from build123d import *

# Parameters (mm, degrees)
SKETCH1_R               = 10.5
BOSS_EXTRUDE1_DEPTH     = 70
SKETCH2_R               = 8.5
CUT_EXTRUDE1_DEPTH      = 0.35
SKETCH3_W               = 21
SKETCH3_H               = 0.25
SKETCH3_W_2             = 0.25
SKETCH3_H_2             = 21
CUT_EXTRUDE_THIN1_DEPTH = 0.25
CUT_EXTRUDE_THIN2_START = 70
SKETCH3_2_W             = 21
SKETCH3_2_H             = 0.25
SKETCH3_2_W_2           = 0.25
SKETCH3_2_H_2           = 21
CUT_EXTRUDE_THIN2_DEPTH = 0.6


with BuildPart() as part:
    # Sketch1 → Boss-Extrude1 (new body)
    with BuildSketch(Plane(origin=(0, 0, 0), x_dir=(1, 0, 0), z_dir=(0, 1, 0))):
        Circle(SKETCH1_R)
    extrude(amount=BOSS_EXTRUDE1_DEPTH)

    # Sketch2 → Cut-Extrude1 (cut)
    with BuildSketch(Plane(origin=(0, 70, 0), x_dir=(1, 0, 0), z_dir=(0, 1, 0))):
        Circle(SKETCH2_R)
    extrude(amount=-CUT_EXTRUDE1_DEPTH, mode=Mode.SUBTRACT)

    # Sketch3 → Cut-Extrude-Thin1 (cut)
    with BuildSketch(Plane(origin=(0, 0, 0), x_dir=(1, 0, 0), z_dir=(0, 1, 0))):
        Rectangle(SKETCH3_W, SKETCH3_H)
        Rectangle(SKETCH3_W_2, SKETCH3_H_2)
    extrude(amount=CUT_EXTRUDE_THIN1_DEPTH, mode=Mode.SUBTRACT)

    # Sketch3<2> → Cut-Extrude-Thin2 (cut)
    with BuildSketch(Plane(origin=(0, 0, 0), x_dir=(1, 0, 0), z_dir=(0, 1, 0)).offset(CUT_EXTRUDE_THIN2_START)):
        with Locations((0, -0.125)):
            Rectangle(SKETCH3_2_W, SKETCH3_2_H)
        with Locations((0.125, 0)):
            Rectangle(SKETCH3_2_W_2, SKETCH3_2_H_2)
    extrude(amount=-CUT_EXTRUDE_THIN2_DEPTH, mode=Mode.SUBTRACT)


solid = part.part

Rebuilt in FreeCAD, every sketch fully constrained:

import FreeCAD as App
import Part
import Sketcher

V = App.Vector

doc = App.newDocument("Part")
body = doc.addObject("PartDesign::Body", "Body")

sketch1 = body.newObject("Sketcher::SketchObject", "Sketch")
sketch1.AttachmentSupport = (doc.getObject("XZ_Plane"), [""])
sketch1.MapMode = "FlatFace"
sketch1.addGeometry(Part.Circle(V(0, 0, 0), V(0, 0, 1), 10.5), False)
sketch1.addConstraint(Sketcher.Constraint("Coincident", 0, 3, -1, 1))
sketch1.addConstraint(Sketcher.Constraint("Diameter", 0, 21.0))
pad1 = body.newObject("PartDesign::Pad", "Pad")
pad1.Profile = sketch1
pad1.Length = 70
pad1.Reversed = True

sketch2 = body.newObject("Sketcher::SketchObject", "Sketch001")
sketch2.AttachmentSupport = (doc.getObject("XZ_Plane"), [""])
sketch2.MapMode = "FlatFace"
sketch2.AttachmentOffset = App.Placement(V(0, 0, -70), App.Rotation())
sketch2.addGeometry(Part.Circle(V(0, 0, 0), V(0, 0, 1), 8.5), False)
sketch2.addConstraint(Sketcher.Constraint("Coincident", 0, 3, -1, 1))
sketch2.addConstraint(Sketcher.Constraint("Diameter", 0, 17.0))
pocket1 = body.newObject("PartDesign::Pocket", "Pocket")
pocket1.Profile = sketch2
pocket1.Length = 0.35
pocket1.Reversed = True

sketch3 = body.newObject("Sketcher::SketchObject", "Sketch002")
sketch3.AttachmentSupport = (doc.getObject("XZ_Plane"), [""])
sketch3.MapMode = "FlatFace"
sketch3.addGeometry(Part.LineSegment(V(-10.5, -0.125, 0), V(-10.5, 0.125, 0)), False)
sketch3.addGeometry(Part.LineSegment(V(-10.5, 0.125, 0), V(-0.125, 0.125, 0)), False)
sketch3.addGeometry(Part.LineSegment(V(-0.125, 0.125, 0), V(-0.125, 10.5, 0)), False)
sketch3.addGeometry(Part.LineSegment(V(-0.125, 10.5, 0), V(0.125, 10.5, 0)), False)
sketch3.addGeometry(Part.LineSegment(V(0.125, 10.5, 0), V(0.125, 0.125, 0)), False)
sketch3.addGeometry(Part.LineSegment(V(0.125, 0.125, 0), V(10.5, 0.125, 0)), False)
sketch3.addGeometry(Part.LineSegment(V(10.5, 0.125, 0), V(10.5, -0.125, 0)), False)
sketch3.addGeometry(Part.LineSegment(V(10.5, -0.125, 0), V(0.125, -0.125, 0)), False)
sketch3.addGeometry(Part.LineSegment(V(0.125, -0.125, 0), V(0.125, -10.5, 0)), False)
sketch3.addGeometry(Part.LineSegment(V(0.125, -10.5, 0), V(-0.125, -10.5, 0)), False)
sketch3.addGeometry(Part.LineSegment(V(-0.125, -10.5, 0), V(-0.125, -0.125, 0)), False)
sketch3.addGeometry(Part.LineSegment(V(-0.125, -0.125, 0), V(-10.5, -0.125, 0)), False)
sketch3.addConstraint(Sketcher.Constraint("Coincident", 0, 2, 1, 1))
sketch3.addConstraint(Sketcher.Constraint("Coincident", 1, 2, 2, 1))
sketch3.addConstraint(Sketcher.Constraint("Coincident", 2, 2, 3, 1))
sketch3.addConstraint(Sketcher.Constraint("Coincident", 3, 2, 4, 1))
sketch3.addConstraint(Sketcher.Constraint("Coincident", 4, 2, 5, 1))
sketch3.addConstraint(Sketcher.Constraint("Coincident", 5, 2, 6, 1))
sketch3.addConstraint(Sketcher.Constraint("Coincident", 6, 2, 7, 1))
sketch3.addConstraint(Sketcher.Constraint("Coincident", 7, 2, 8, 1))
sketch3.addConstraint(Sketcher.Constraint("Coincident", 8, 2, 9, 1))
sketch3.addConstraint(Sketcher.Constraint("Coincident", 9, 2, 10, 1))
sketch3.addConstraint(Sketcher.Constraint("Coincident", 10, 2, 11, 1))
sketch3.addConstraint(Sketcher.Constraint("Coincident", 11, 2, 0, 1))
sketch3.addConstraint(Sketcher.Constraint("Vertical", 0))
sketch3.addConstraint(Sketcher.Constraint("Horizontal", 1))
sketch3.addConstraint(Sketcher.Constraint("Vertical", 2))
sketch3.addConstraint(Sketcher.Constraint("Horizontal", 3))
sketch3.addConstraint(Sketcher.Constraint("Vertical", 4))
sketch3.addConstraint(Sketcher.Constraint("Horizontal", 5))
sketch3.addConstraint(Sketcher.Constraint("Vertical", 6))
sketch3.addConstraint(Sketcher.Constraint("Horizontal", 7))
sketch3.addConstraint(Sketcher.Constraint("Vertical", 8))
sketch3.addConstraint(Sketcher.Constraint("Horizontal", 9))
sketch3.addConstraint(Sketcher.Constraint("Vertical", 10))
sketch3.addConstraint(Sketcher.Constraint("Horizontal", 11))
sketch3.addConstraint(Sketcher.Constraint("Symmetric", 0, 2, 6, 2, -1, 1))
sketch3.addConstraint(Sketcher.Constraint("Symmetric", 2, 2, 8, 2, -1, 1))
sketch3.addConstraint(Sketcher.Constraint("Symmetric", 4, 2, 10, 2, -1, 1))
sketch3.addConstraint(Sketcher.Constraint("Symmetric", 1, 2, 4, 2, -2))
sketch3.addConstraint(Sketcher.Constraint("Equal", 9, 0))
sketch3.addConstraint(Sketcher.Constraint("Equal", 11, 2))
sketch3.addConstraint(Sketcher.Constraint("DistanceX", 0, 2, 5, 2, 21.0))
sketch3.addConstraint(Sketcher.Constraint("DistanceX", 3, 1, 3, 2, 0.25))
pocket2 = body.newObject("PartDesign::Pocket", "Pocket001")
pocket2.Profile = sketch3
pocket2.Length = 0.25

sketch4 = body.newObject("Sketcher::SketchObject", "Sketch003")
sketch4.AttachmentSupport = (doc.getObject("XZ_Plane"), [""])
sketch4.MapMode = "FlatFace"
sketch4.AttachmentOffset = App.Placement(V(0, 0, -70), App.Rotation())
sketch4.addGeometry(Part.LineSegment(V(-10.5, 0, 0), V(-10.5, 0.25, 0)), False)
sketch4.addGeometry(Part.LineSegment(V(-10.5, 0.25, 0), V(0, 0.25, 0)), False)
sketch4.addGeometry(Part.LineSegment(V(0, 0.25, 0), V(0, 10.5, 0)), False)
sketch4.addGeometry(Part.LineSegment(V(0, 10.5, 0), V(0.25, 10.5, 0)), False)
sketch4.addGeometry(Part.LineSegment(V(0.25, 10.5, 0), V(0.25, 0.25, 0)), False)
sketch4.addGeometry(Part.LineSegment(V(0.25, 0.25, 0), V(10.5, 0.25, 0)), False)
sketch4.addGeometry(Part.LineSegment(V(10.5, 0.25, 0), V(10.5, 0, 0)), False)
sketch4.addGeometry(Part.LineSegment(V(10.5, 0, 0), V(0.25, 0, 0)), False)
sketch4.addGeometry(Part.LineSegment(V(0.25, 0, 0), V(0.25, -10.5, 0)), False)
sketch4.addGeometry(Part.LineSegment(V(0.25, -10.5, 0), V(0, -10.5, 0)), False)
sketch4.addGeometry(Part.LineSegment(V(0, -10.5, 0), V(0, 0, 0)), False)
sketch4.addGeometry(Part.LineSegment(V(0, 0, 0), V(-10.5, 0, 0)), False)
sketch4.addConstraint(Sketcher.Constraint("Coincident", 0, 2, 1, 1))
sketch4.addConstraint(Sketcher.Constraint("Coincident", 1, 2, 2, 1))
sketch4.addConstraint(Sketcher.Constraint("Coincident", 2, 2, 3, 1))
sketch4.addConstraint(Sketcher.Constraint("Coincident", 3, 2, 4, 1))
sketch4.addConstraint(Sketcher.Constraint("Coincident", 4, 2, 5, 1))
sketch4.addConstraint(Sketcher.Constraint("Coincident", 5, 2, 6, 1))
sketch4.addConstraint(Sketcher.Constraint("Coincident", 6, 2, 7, 1))
sketch4.addConstraint(Sketcher.Constraint("Coincident", 7, 2, 8, 1))
sketch4.addConstraint(Sketcher.Constraint("Coincident", 8, 2, 9, 1))
sketch4.addConstraint(Sketcher.Constraint("Coincident", 9, 2, 10, 1))
sketch4.addConstraint(Sketcher.Constraint("Coincident", 10, 2, 11, 1))
sketch4.addConstraint(Sketcher.Constraint("Coincident", 11, 2, 0, 1))
sketch4.addConstraint(Sketcher.Constraint("Vertical", 0))
sketch4.addConstraint(Sketcher.Constraint("Horizontal", 1))
sketch4.addConstraint(Sketcher.Constraint("Vertical", 2))
sketch4.addConstraint(Sketcher.Constraint("Horizontal", 3))
sketch4.addConstraint(Sketcher.Constraint("Vertical", 4))
sketch4.addConstraint(Sketcher.Constraint("Horizontal", 5))
sketch4.addConstraint(Sketcher.Constraint("Vertical", 6))
sketch4.addConstraint(Sketcher.Constraint("Horizontal", 7))
sketch4.addConstraint(Sketcher.Constraint("Vertical", 8))
sketch4.addConstraint(Sketcher.Constraint("Horizontal", 9))
sketch4.addConstraint(Sketcher.Constraint("Vertical", 10))
sketch4.addConstraint(Sketcher.Constraint("Horizontal", 11))
sketch4.addConstraint(Sketcher.Constraint("Coincident", 10, 2, -1, 1))
sketch4.addConstraint(Sketcher.Constraint("Symmetric", 2, 2, 9, 2, -1, 1))
sketch4.addConstraint(Sketcher.Constraint("Symmetric", 6, 2, 11, 2, -1, 1))
sketch4.addConstraint(Sketcher.Constraint("Horizontal", 1, 2, 4, 2))
sketch4.addConstraint(Sketcher.Constraint("Vertical", 4, 2, 7, 2))
sketch4.addConstraint(Sketcher.Constraint("Equal", 9, 0))
sketch4.addConstraint(Sketcher.Constraint("Equal", 7, 2))
sketch4.addConstraint(Sketcher.Constraint("DistanceX", 1, 1, 1, 2, 10.5))
sketch4.addConstraint(Sketcher.Constraint("DistanceX", 3, 1, 3, 2, 0.25))
pocket3 = body.newObject("PartDesign::Pocket", "Pocket002")
pocket3.Profile = sketch4
pocket3.Length = 0.6
pocket3.Reversed = True

doc.recompute()
